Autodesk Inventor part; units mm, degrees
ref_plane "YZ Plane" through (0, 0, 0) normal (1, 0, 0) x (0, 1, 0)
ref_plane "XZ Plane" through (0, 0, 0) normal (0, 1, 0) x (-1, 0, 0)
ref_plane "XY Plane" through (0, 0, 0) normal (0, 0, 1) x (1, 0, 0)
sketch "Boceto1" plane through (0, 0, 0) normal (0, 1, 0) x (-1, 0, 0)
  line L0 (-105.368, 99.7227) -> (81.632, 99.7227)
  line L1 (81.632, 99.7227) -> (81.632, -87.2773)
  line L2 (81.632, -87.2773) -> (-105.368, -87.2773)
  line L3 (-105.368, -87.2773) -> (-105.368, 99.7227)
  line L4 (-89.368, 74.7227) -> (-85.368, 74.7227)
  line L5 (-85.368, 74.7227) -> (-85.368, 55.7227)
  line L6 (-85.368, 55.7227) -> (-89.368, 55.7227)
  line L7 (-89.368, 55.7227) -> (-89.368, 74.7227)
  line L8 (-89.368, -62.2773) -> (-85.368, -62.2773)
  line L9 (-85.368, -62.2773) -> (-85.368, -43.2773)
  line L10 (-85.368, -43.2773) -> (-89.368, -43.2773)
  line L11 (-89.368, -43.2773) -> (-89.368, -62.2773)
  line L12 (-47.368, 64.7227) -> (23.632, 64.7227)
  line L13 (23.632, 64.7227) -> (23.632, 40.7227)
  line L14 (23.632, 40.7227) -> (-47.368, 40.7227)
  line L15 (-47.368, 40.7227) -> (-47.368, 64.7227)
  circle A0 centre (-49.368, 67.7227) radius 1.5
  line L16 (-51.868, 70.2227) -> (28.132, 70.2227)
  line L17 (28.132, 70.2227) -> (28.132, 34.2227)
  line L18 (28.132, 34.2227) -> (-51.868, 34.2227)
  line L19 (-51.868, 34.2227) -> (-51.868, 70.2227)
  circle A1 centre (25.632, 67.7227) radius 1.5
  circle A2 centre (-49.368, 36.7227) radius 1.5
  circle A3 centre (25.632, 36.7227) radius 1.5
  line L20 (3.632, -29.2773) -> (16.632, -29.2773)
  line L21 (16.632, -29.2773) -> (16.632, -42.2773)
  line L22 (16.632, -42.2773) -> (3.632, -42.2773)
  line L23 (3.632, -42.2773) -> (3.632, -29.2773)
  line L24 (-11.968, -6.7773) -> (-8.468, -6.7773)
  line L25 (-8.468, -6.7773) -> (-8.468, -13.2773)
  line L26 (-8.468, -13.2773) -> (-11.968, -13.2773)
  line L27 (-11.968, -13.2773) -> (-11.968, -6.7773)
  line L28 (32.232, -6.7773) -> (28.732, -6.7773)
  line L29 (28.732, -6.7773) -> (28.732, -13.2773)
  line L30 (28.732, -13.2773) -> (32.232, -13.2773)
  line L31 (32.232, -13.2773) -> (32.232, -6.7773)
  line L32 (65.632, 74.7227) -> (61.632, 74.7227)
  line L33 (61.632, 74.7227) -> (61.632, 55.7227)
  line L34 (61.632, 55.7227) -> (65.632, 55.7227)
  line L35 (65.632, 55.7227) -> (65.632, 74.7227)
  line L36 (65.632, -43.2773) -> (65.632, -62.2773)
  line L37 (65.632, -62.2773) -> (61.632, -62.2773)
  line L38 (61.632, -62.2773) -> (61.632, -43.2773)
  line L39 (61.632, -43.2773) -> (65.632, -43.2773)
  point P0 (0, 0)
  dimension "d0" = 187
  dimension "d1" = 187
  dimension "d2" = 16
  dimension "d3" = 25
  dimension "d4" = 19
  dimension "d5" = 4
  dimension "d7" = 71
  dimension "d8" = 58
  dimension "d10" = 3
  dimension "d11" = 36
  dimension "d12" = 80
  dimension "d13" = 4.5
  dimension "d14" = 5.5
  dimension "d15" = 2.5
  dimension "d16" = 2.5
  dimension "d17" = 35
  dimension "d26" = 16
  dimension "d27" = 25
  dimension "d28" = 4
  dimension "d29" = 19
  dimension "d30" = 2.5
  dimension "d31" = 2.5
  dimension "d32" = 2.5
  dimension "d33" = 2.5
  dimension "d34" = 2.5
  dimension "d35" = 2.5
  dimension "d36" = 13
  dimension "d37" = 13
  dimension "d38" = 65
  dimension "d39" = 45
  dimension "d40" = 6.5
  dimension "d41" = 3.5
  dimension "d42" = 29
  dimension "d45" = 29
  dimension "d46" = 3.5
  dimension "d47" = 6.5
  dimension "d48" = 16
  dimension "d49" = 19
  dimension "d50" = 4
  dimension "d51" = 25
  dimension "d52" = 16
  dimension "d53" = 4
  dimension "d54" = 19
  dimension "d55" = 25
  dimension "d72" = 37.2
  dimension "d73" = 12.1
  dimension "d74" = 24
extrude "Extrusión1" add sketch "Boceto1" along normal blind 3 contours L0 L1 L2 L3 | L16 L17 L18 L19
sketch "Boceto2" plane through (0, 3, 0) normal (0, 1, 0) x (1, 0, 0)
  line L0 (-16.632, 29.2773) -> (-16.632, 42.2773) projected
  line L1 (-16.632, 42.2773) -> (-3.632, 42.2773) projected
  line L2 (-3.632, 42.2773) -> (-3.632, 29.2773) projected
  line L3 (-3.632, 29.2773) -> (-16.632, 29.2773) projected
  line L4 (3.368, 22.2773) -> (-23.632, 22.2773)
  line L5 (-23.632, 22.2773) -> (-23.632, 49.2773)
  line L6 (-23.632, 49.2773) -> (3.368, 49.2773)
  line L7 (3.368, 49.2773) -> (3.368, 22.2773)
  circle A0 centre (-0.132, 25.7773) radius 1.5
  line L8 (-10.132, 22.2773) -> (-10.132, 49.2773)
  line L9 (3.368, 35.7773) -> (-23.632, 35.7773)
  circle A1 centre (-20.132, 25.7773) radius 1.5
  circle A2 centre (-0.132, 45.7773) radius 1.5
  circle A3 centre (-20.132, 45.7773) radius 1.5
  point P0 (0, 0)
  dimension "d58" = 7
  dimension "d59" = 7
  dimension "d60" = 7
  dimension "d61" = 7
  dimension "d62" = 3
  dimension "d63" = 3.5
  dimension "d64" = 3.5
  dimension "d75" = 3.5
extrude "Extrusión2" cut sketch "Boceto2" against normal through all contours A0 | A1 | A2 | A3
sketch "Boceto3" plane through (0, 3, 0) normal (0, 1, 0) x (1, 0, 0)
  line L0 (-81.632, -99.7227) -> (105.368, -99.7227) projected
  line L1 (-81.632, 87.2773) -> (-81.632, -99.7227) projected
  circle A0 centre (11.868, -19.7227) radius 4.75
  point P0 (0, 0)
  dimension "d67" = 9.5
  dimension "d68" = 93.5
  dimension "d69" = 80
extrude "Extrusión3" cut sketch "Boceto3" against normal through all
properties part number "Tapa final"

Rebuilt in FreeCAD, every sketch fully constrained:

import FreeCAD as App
import Part
import Sketcher
from FreeCAD import Vector
Q = App.Units.Quantity

doc = App.newDocument("Part")
body = doc.addObject("PartDesign::Body", "Body")

# Sketch on XZ plane
sketch1 = body.newObject("Sketcher::SketchObject", "Sketch")
sketch1.AttachmentSupport = (doc.getObject("XZ_Plane"), [""])
sketch1.MapMode = "FlatFace"
sketch1.addGeometry([
    Part.LineSegment(Vector(-81.6, 99.7, 0), Vector(105.4, 99.7, 0)),  # 0
    Part.LineSegment(Vector(105.4, 99.7, 0), Vector(105.4, -87.3, 0)),  # 1
    Part.LineSegment(Vector(105.4, -87.3, 0), Vector(-81.6, -87.3, 0)),  # 2
    Part.LineSegment(Vector(-81.6, -87.3, 0), Vector(-81.6, 99.7, 0)),  # 3
    Part.LineSegment(Vector(85.4, -62.3, 0), Vector(89.4, -62.3, 0)),  # 4
    Part.LineSegment(Vector(89.4, -62.3, 0), Vector(89.4, -43.3, 0)),  # 5
    Part.LineSegment(Vector(89.4, -43.3, 0), Vector(85.4, -43.3, 0)),  # 6
    Part.LineSegment(Vector(85.4, -43.3, 0), Vector(85.4, -62.3, 0)),  # 7
    Part.LineSegment(Vector(-61.6, -43.3, 0), Vector(-65.6, -43.3, 0)),  # 8
    Part.LineSegment(Vector(-65.6, -43.3, 0), Vector(-65.6, -62.3, 0)),  # 9
    Part.LineSegment(Vector(-65.6, -62.3, 0), Vector(-61.6, -62.3, 0)),  # 10
    Part.LineSegment(Vector(-61.6, -62.3, 0), Vector(-61.6, -43.3, 0)),  # 11
    Part.LineSegment(Vector(-3.6, -42.3, 0), Vector(-3.6, -29.3, 0)),  # 12
    Part.LineSegment(Vector(-3.6, -29.3, 0), Vector(-16.6, -29.3, 0)),  # 13
    Part.LineSegment(Vector(-16.6, -29.3, 0), Vector(-16.6, -42.3, 0)),  # 14
    Part.LineSegment(Vector(-16.6, -42.3, 0), Vector(-3.6, -42.3, 0)),  # 15
    Part.LineSegment(Vector(12, -13.3, 0), Vector(12, -6.8, 0)),  # 16
    Part.LineSegment(Vector(12, -6.8, 0), Vector(8.5, -6.8, 0)),  # 17
    Part.LineSegment(Vector(8.5, -6.8, 0), Vector(8.5, -13.3, 0)),  # 18
    Part.LineSegment(Vector(8.5, -13.3, 0), Vector(12, -13.3, 0)),  # 19
    Part.LineSegment(Vector(-28.7, -6.8, 0), Vector(-32.2, -6.8, 0)),  # 20
    Part.LineSegment(Vector(-32.2, -6.8, 0), Vector(-32.2, -13.3, 0)),  # 21
    Part.LineSegment(Vector(-32.2, -13.3, 0), Vector(-28.7, -13.3, 0)),  # 22
    Part.LineSegment(Vector(-28.7, -13.3, 0), Vector(-28.7, -6.8, 0)),  # 23
    Part.LineSegment(Vector(89.4, 55.7, 0), Vector(89.4, 74.7, 0)),  # 24
    Part.LineSegment(Vector(89.4, 74.7, 0), Vector(85.4, 74.7, 0)),  # 25
    Part.LineSegment(Vector(85.4, 74.7, 0), Vector(85.4, 55.7, 0)),  # 26
    Part.LineSegment(Vector(85.4, 55.7, 0), Vector(89.4, 55.7, 0)),  # 27
    Part.LineSegment(Vector(-61.6, 74.7, 0), Vector(-65.6, 74.7, 0)),  # 28
    Part.LineSegment(Vector(-65.6, 74.7, 0), Vector(-65.6, 55.7, 0)),  # 29
    Part.LineSegment(Vector(-65.6, 55.7, 0), Vector(-61.6, 55.7, 0)),  # 30
    Part.LineSegment(Vector(-61.6, 55.7, 0), Vector(-61.6, 74.7, 0)),  # 31
    Part.LineSegment(Vector(47.4, 64.7, 0), Vector(-23.6, 64.7, 0)),  # 32
    Part.LineSegment(Vector(-23.6, 64.7, 0), Vector(-23.6, 40.7, 0)),  # 33
    Part.LineSegment(Vector(-23.6, 40.7, 0), Vector(47.4, 40.7, 0)),  # 34
    Part.LineSegment(Vector(47.4, 40.7, 0), Vector(47.4, 64.7, 0)),  # 35
    Part.Circle(Vector(49.4, 67.7, 0), Vector(0, 0, 1), 1.5),  # 36
    Part.Circle(Vector(-25.6, 36.7, 0), Vector(0, 0, 1), 1.5),  # 37
    Part.Circle(Vector(-25.6, 67.7, 0), Vector(0, 0, 1), 1.5),  # 38
    Part.Circle(Vector(49.4, 36.7, 0), Vector(0, 0, 1), 1.5),  # 39
], False)
sketch1.addConstraint([
    Sketcher.Constraint("Coincident", 0, 2, 1, 1),
    Sketcher.Constraint("Coincident", 1, 2, 2, 1),
    Sketcher.Constraint("Coincident", 2, 2, 3, 1),
    Sketcher.Constraint("Coincident", 3, 2, 0, 1),
    Sketcher.Constraint("Coincident", 4, 2, 5, 1),
    Sketcher.Constraint("Coincident", 5, 2, 6, 1),
    Sketcher.Constraint("Coincident", 6, 2, 7, 1),
    Sketcher.Constraint("Coincident", 7, 2, 4, 1),
    Sketcher.Constraint("Coincident", 8, 2, 9, 1),
    Sketcher.Constraint("Coincident", 9, 2, 10, 1),
    Sketcher.Constraint("Coincident", 10, 2, 11, 1),
    Sketcher.Constraint("Coincident", 11, 2, 8, 1),
    Sketcher.Constraint("Coincident", 12, 2, 13, 1),
    Sketcher.Constraint("Coincident", 13, 2, 14, 1),
    Sketcher.Constraint("Coincident", 14, 2, 15, 1),
    Sketcher.Constraint("Coincident", 15, 2, 12, 1),
    Sketcher.Constraint("Coincident", 16, 2, 17, 1),
    Sketcher.Constraint("Coincident", 17, 2, 18, 1),
    Sketcher.Constraint("Coincident", 18, 2, 19, 1),
    Sketcher.Constraint("Coincident", 19, 2, 16, 1),
    Sketcher.Constraint("Coincident", 20, 2, 21, 1),
    Sketcher.Constraint("Coincident", 21, 2, 22, 1),
    Sketcher.Constraint("Coincident", 22, 2, 23, 1),
    Sketcher.Constraint("Coincident", 23, 2, 20, 1),
    Sketcher.Constraint("Coincident", 24, 2, 25, 1),
    Sketcher.Constraint("Coincident", 25, 2, 26, 1),
    Sketcher.Constraint("Coincident", 26, 2, 27, 1),
    Sketcher.Constraint("Coincident", 27, 2, 24, 1),
    Sketcher.Constraint("Coincident", 28, 2, 29, 1),
    Sketcher.Constraint("Coincident", 29, 2, 30, 1),
    Sketcher.Constraint("Coincident", 30, 2, 31, 1),
    Sketcher.Constraint("Coincident", 31, 2, 28, 1),
    Sketcher.Constraint("Coincident", 32, 2, 33, 1),
    Sketcher.Constraint("Coincident", 33, 2, 34, 1),
    Sketcher.Constraint("Coincident", 34, 2, 35, 1),
    Sketcher.Constraint("Coincident", 35, 2, 32, 1),
    Sketcher.Constraint("Horizontal", 0),
    Sketcher.Constraint("Vertical", 1),
    Sketcher.Constraint("Horizontal", 2),
    Sketcher.Constraint("Vertical", 3),
    Sketcher.Constraint("Horizontal", 4),
    Sketcher.Constraint("Vertical", 5),
    Sketcher.Constraint("Horizontal", 6),
    Sketcher.Constraint("Vertical", 7),
    Sketcher.Constraint("Horizontal", 8),
    Sketcher.Constraint("Vertical", 9),
    Sketcher.Constraint("Horizontal", 10),
    Sketcher.Constraint("Vertical", 11),
    Sketcher.Constraint("Vertical", 12),
    Sketcher.Constraint("Horizontal", 13),
    Sketcher.Constraint("Vertical", 14),
    Sketcher.Constraint("Horizontal", 15),
    Sketcher.Constraint("Vertical", 16),
    Sketcher.Constraint("Horizontal", 17),
    Sketcher.Constraint("Vertical", 18),
    Sketcher.Constraint("Horizontal", 19),
    Sketcher.Constraint("Horizontal", 20),
    Sketcher.Constraint("Vertical", 21),
    Sketcher.Constraint("Horizontal", 22),
    Sketcher.Constraint("Vertical", 23),
    Sketcher.Constraint("Vertical", 24),
    Sketcher.Constraint("Horizontal", 25),
    Sketcher.Constraint("Vertical", 26),
    Sketcher.Constraint("Horizontal", 27),
    Sketcher.Constraint("Horizontal", 28),
    Sketcher.Constraint("Vertical", 29),
    Sketcher.Constraint("Horizontal", 30),
    Sketcher.Constraint("Vertical", 31),
    Sketcher.Constraint("Horizontal", 32),
    Sketcher.Constraint("Vertical", 33),
    Sketcher.Constraint("Horizontal", 34),
    Sketcher.Constraint("Vertical", 35),
    Sketcher.Constraint("Equal", 36, 37),
    Sketcher.Constraint("Equal", 37, 38),
    Sketcher.Constraint("Equal", 38, 39),
    Sketcher.Constraint("Horizontal", 36, 3, 38, 3),
    Sketcher.Constraint("Horizontal", 37, 3, 39, 3),
    Sketcher.Constraint("Horizontal", 6, 2, 8, 2),
    Sketcher.Constraint("Horizontal", 7, 2, 9, 2),
    Sketcher.Constraint("Horizontal", 17, 2, 20, 2),
    Sketcher.Constraint("Horizontal", 19, 2, 21, 2),
    Sketcher.Constraint("Horizontal", 25, 2, 28, 2),
    Sketcher.Constraint("Horizontal", 27, 2, 29, 2),
    Sketcher.Constraint("Vertical", 37, 3, 38, 3),
    Sketcher.Constraint("Vertical", 36, 3, 39, 3),
    Sketcher.Constraint("Vertical", 5, 2, 24, 2),
    Sketcher.Constraint("Vertical", 7, 2, 25, 2),
    Sketcher.Constraint("Vertical", 9, 2, 28, 2),
    Sketcher.Constraint("Vertical", 11, 2, 30, 2),
    Sketcher.Constraint("Equal", 6, 8),
    Sketcher.Constraint("Equal", 19, 20),
    Sketcher.Constraint("Equal", 2, 1),
    Sketcher.Constraint("Equal", 15, 12),
    Sketcher.Constraint("Equal", 11, 24),
    Sketcher.Constraint("Diameter", 36, Q("3 mm")),
    Sketcher.Constraint("DistanceX", 0, 1, 0, 2, Q("187 mm")),
    Sketcher.Constraint("DistanceX", 4, 1, 4, 2, Q("4 mm")),
    Sketcher.Constraint("DistanceX", 13, 2, 13, 1, Q("13 mm")),
    Sketcher.Constraint("DistanceX", 32, 2, 32, 1, Q("71 mm")),
    Sketcher.Constraint("DistanceY", 5, 1, 5, 2, Q("19 mm")),
    Sketcher.Constraint("DistanceY", 33, 2, 33, 1, Q("24 mm")),
    Sketcher.Constraint("DistanceX", 17, 2, 17, 1, Q("3.5 mm")),
    Sketcher.Constraint("DistanceY", 16, 1, 16, 2, Q("6.5 mm")),
    Sketcher.Constraint("DistanceX", 4, 2, 1, 2, Q("16 mm")),
    Sketcher.Constraint("DistanceY", 1, 2, 4, 2, Q("25 mm")),
    Sketcher.Constraint("DistanceY", 5, 2, 39, 3, Q("80 mm")),
    Sketcher.Constraint("DistanceX", 39, 3, 6, 2, Q("36 mm")),
    Sketcher.Constraint("DistanceX", 2, 2, 8, 2, Q("16 mm")),
    Sketcher.Constraint("DistanceX", 10, 2, 37, 3, Q("36 mm")),
    Sketcher.Constraint("DistanceX", 11, 2, 12, 2, Q("58 mm")),
    Sketcher.Constraint("DistanceY", 12, 2, 18, 2, Q("16 mm")),
    Sketcher.Constraint("DistanceY", 24, 2, 0, 2, Q("25 mm")),
    Sketcher.Constraint("DistanceY", 32, 2, 38, 3, Q("3 mm")),
    Sketcher.Constraint("DistanceY", 37, 3, 33, 2, Q("4 mm")),
    Sketcher.Constraint("DistanceX", 12, 2, 17, 2, Q("12.1 mm")),
    Sketcher.Constraint("DistanceX", 22, 2, 13, 2, Q("12.1 mm")),
    Sketcher.Constraint("DistanceY", 11, 2, 12, 2, Q("14 mm")),
    Sketcher.Constraint("DistanceX", 38, 3, 32, 2, Q("2 mm")),
    Sketcher.Constraint("DistanceX", -1, 1, 36, 3, Q("49.368 mm")),
    Sketcher.Constraint("DistanceY", -1, 1, 36, 3, Q("67.7227 mm")),
])
pad1 = body.newObject("PartDesign::Pad", "Pad")
pad1.Profile = sketch1
pad1.Length = 3
pad1.Reversed = True

# Sketch on XZ plane
sketch2 = body.newObject("Sketcher::SketchObject", "Sketch001")
sketch2.AttachmentSupport = (doc.getObject("XZ_Plane"), [""])
sketch2.MapMode = "FlatFace"
sketch2.AttachmentOffset = App.Placement(Vector(0, 0, -3), App.Rotation())
sketch2.addGeometry([
    Part.Circle(Vector(-0.1, -25.8, 0), Vector(0, 0, 1), 1.5),
    Part.Circle(Vector(-20.1, -25.8, 0), Vector(0, 0, 1), 1.5),
    Part.Circle(Vector(-0.1, -45.8, 0), Vector(0, 0, 1), 1.5),
    Part.Circle(Vector(-20.1, -45.8, 0), Vector(0, 0, 1), 1.5),
], False)
sketch2.addConstraint([
    Sketcher.Constraint("Equal", 0, 1),
    Sketcher.Constraint("Equal", 1, 2),
    Sketcher.Constraint("Equal", 2, 3),
    Sketcher.Constraint("Horizontal", 0, 3, 1, 3),
    Sketcher.Constraint("Horizontal", 2, 3, 3, 3),
    Sketcher.Constraint("Vertical", 0, 3, 2, 3),
    Sketcher.Constraint("Vertical", 1, 3, 3, 3),
    Sketcher.Constraint("Diameter", 0, Q("3 mm")),
    Sketcher.Constraint("DistanceX", 1, 3, 0, 3, Q("20 mm")),
    Sketcher.Constraint("DistanceY", 2, 3, 0, 3, Q("20 mm")),
    Sketcher.Constraint("DistanceX", 0, 3, -1, 1, Q("0.132 mm")),
    Sketcher.Constraint("DistanceY", 0, 3, -1, 1, Q("25.7773 mm")),
])
pocket1 = body.newObject("PartDesign::Pocket", "Pocket")
pocket1.Profile = sketch2
pocket1.Type = "ThroughAll"
pocket1.Reversed = True

# Sketch on XZ plane
sketch3 = body.newObject("Sketcher::SketchObject", "Sketch002")
sketch3.AttachmentSupport = (doc.getObject("XZ_Plane"), [""])
sketch3.MapMode = "FlatFace"
sketch3.AttachmentOffset = App.Placement(Vector(0, 0, -3), App.Rotation())
sketch3.addGeometry(Part.Circle(Vector(11.9, 19.7, 0), Vector(0, 0, 1), 4.8), False)
sketch3.addConstraint([
    Sketcher.Constraint("Diameter", 0, Q("9.5 mm")),
    Sketcher.Constraint("DistanceX", -1, 1, 0, 3, Q("11.868 mm")),
    Sketcher.Constraint("DistanceY", -1, 1, 0, 3, Q("19.7227 mm")),
])
pocket2 = body.newObject("PartDesign::Pocket", "Pocket001")
pocket2.Profile = sketch3
pocket2.Type = "ThroughAll"
pocket2.Reversed = True

doc.recompute()
